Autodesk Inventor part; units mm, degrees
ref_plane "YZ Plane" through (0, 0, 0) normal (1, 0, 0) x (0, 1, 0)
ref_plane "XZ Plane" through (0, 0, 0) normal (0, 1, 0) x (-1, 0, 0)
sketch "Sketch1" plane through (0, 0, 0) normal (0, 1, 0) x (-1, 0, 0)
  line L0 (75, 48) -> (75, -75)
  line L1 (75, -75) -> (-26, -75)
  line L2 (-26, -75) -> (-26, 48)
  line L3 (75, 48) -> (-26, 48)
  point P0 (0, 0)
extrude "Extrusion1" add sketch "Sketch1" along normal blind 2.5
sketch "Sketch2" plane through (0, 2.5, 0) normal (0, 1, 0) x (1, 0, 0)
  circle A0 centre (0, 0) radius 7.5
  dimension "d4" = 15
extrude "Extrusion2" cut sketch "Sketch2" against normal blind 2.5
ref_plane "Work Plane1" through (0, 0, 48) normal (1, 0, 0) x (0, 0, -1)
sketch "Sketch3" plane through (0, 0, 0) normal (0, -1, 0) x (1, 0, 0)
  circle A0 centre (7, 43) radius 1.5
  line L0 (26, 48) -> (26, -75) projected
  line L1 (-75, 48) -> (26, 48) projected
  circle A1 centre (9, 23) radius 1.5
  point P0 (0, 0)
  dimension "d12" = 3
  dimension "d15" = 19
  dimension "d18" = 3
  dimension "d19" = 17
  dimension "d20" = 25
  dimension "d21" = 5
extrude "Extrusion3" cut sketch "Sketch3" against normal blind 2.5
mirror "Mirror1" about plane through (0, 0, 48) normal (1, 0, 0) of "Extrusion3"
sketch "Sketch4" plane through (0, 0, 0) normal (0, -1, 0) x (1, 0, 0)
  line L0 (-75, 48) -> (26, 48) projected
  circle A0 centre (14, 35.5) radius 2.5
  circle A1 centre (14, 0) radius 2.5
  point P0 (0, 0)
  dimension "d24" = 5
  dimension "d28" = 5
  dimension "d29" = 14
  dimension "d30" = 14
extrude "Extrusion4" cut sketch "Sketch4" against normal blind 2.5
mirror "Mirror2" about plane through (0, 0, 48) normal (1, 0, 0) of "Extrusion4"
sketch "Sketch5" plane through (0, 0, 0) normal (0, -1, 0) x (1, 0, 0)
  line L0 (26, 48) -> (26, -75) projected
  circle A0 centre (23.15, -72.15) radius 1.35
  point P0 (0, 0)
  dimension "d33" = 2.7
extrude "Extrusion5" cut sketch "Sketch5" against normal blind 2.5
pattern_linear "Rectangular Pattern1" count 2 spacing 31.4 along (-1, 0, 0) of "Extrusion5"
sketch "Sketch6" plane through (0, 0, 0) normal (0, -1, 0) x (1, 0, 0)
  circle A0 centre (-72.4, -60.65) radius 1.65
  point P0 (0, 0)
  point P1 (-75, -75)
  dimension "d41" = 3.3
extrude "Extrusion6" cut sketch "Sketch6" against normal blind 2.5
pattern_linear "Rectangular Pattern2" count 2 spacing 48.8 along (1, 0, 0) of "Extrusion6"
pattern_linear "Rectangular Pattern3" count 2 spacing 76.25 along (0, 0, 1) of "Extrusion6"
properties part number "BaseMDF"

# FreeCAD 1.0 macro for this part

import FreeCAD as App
import Part
import Sketcher

V = App.Vector
Q = App.Units.Quantity

doc = App.newDocument("Part")
body = doc.addObject("PartDesign::Body", "Body")

sketch1 = body.newObject("Sketcher::SketchObject", "Sketch")
sketch1.AttachmentSupport = (doc.getObject("XZ_Plane"), [""])
sketch1.MapMode = "FlatFace"
sketch1.addGeometry(Part.LineSegment(V(-75, -75, 0), V(-75, 48, 0)), False)
sketch1.addGeometry(Part.LineSegment(V(-75, 48, 0), V(26, 48, 0)), False)
sketch1.addGeometry(Part.LineSegment(V(26, 48, 0), V(26, -75, 0)), False)
sketch1.addGeometry(Part.LineSegment(V(26, -75, 0), V(-75, -75, 0)), False)
sketch1.addConstraint(Sketcher.Constraint("Coincident", 0, 2, 1, 1))
sketch1.addConstraint(Sketcher.Constraint("Coincident", 1, 2, 2, 1))
sketch1.addConstraint(Sketcher.Constraint("Coincident", 2, 2, 3, 1))
sketch1.addConstraint(Sketcher.Constraint("Coincident", 3, 2, 0, 1))
sketch1.addConstraint(Sketcher.Constraint("Vertical", 0))
sketch1.addConstraint(Sketcher.Constraint("Horizontal", 1))
sketch1.addConstraint(Sketcher.Constraint("Vertical", 2))
sketch1.addConstraint(Sketcher.Constraint("Horizontal", 3))
sketch1.addConstraint(Sketcher.Constraint("DistanceX", 1, 1, 1, 2, Q("101 mm")))
sketch1.addConstraint(Sketcher.Constraint("DistanceY", 0, 1, 0, 2, Q("123 mm")))
sketch1.addConstraint(Sketcher.Constraint("DistanceX", 0, 2, -1, 1, Q("75 mm")))
sketch1.addConstraint(Sketcher.Constraint("DistanceY", -1, 1, 0, 2, Q("48 mm")))
pad1 = body.newObject("PartDesign::Pad", "Pad")
pad1.Profile = sketch1
pad1.Length = 2.5
pad1.Reversed = True

sketch2 = body.newObject("Sketcher::SketchObject", "Sketch001")
sketch2.AttachmentSupport = (doc.getObject("XZ_Plane"), [""])
sketch2.MapMode = "FlatFace"
sketch2.AttachmentOffset = App.Placement(V(0, 0, -2.5), App.Rotation())
sketch2.addGeometry(Part.Circle(V(0, 0, 0), V(0, 0, 1), 7.5), False)
sketch2.addConstraint(Sketcher.Constraint("Coincident", 0, 3, -1, 1))
sketch2.addConstraint(Sketcher.Constraint("Diameter", 0, Q("15 mm")))
pocket1 = body.newObject("PartDesign::Pocket", "Pocket")
pocket1.Profile = sketch2
pocket1.Length = 2.5
pocket1.Reversed = True

sketch3 = body.newObject("Sketcher::SketchObject", "Sketch002")
sketch3.AttachmentSupport = (doc.getObject("XZ_Plane"), [""])
sketch3.MapMode = "FlatFace"
sketch3.addGeometry(Part.Circle(V(7, 43, 0), V(0, 0, 1), 1.5), False)
sketch3.addGeometry(Part.Circle(V(9, 23, 0), V(0, 0, 1), 1.5), False)
sketch3.addConstraint(Sketcher.Constraint("Equal", 0, 1))
sketch3.addConstraint(Sketcher.Constraint("Diameter", 0, Q("3 mm")))
sketch3.addConstraint(Sketcher.Constraint("DistanceX", -1, 1, 0, 3, Q("7 mm")))
sketch3.addConstraint(Sketcher.Constraint("DistanceY", -1, 1, 0, 3, Q("43 mm")))
sketch3.addConstraint(Sketcher.Constraint("DistanceX", -1, 1, 1, 3, Q("9 mm")))
sketch3.addConstraint(Sketcher.Constraint("DistanceY", -1, 1, 1, 3, Q("23 mm")))
pocket2 = body.newObject("PartDesign::Pocket", "Pocket001")
pocket2.Profile = sketch3
pocket2.Length = 2.5
doc.recompute()

mirrored = body.newObject("PartDesign::Mirrored", "Mirrored")
mirrored.Originals = [pocket2]
mirrored.MirrorPlane = (doc.getObject("YZ_Plane"), [""])
body.Tip = mirrored

sketch4 = body.newObject("Sketcher::SketchObject", "Sketch003")
sketch4.AttachmentSupport = (doc.getObject("XZ_Plane"), [""])
sketch4.MapMode = "FlatFace"
sketch4.addGeometry(Part.Circle(V(14, 35.5, 0), V(0, 0, 1), 2.5), False)
sketch4.addGeometry(Part.Circle(V(14, 0, 0), V(0, 0, 1), 2.5), False)
sketch4.addConstraint(Sketcher.Constraint("Equal", 0, 1))
sketch4.addConstraint(Sketcher.Constraint("PointOnObject", 1, 3, -1))
sketch4.addConstraint(Sketcher.Constraint("Vertical", 0, 3, 1, 3))
sketch4.addConstraint(Sketcher.Constraint("Diameter", 0, Q("5 mm")))
sketch4.addConstraint(Sketcher.Constraint("DistanceX", -1, 1, 0, 3, Q("14 mm")))
sketch4.addConstraint(Sketcher.Constraint("DistanceY", -1, 1, 0, 3, Q("35.5 mm")))
pocket3 = body.newObject("PartDesign::Pocket", "Pocket002")
pocket3.Profile = sketch4
pocket3.Length = 2.5
doc.recompute()

mirrored2 = body.newObject("PartDesign::Mirrored", "Mirrored001")
mirrored2.Originals = [pocket3]
mirrored2.MirrorPlane = (doc.getObject("YZ_Plane"), [""])
body.Tip = mirrored2

sketch5 = body.newObject("Sketcher::SketchObject", "Sketch004")
sketch5.AttachmentSupport = (doc.getObject("XZ_Plane"), [""])
sketch5.MapMode = "FlatFace"
sketch5.addGeometry(Part.Circle(V(23.15, -72.15, 0), V(0, 0, 1), 1.35), False)
sketch5.addConstraint(Sketcher.Constraint("Diameter", 0, Q("2.7 mm")))
sketch5.addConstraint(Sketcher.Constraint("DistanceX", -1, 1, 0, 3, Q("23.15 mm")))
sketch5.addConstraint(Sketcher.Constraint("DistanceY", 0, 3, -1, 1, Q("72.15 mm")))
pocket4 = body.newObject("PartDesign::Pocket", "Pocket003")
pocket4.Profile = sketch5
pocket4.Length = 2.5
doc.recompute()

linearpattern = body.newObject("PartDesign::LinearPattern", "LinearPattern")
linearpattern.Originals = [pocket4]
linearpattern.Direction = (doc.getObject("X_Axis"), [""])
linearpattern.Mode = "offset"
linearpattern.Offset = 31.4
linearpattern.Occurrences = 2
linearpattern.Reversed = True
body.Tip = linearpattern

sketch6 = body.newObject("Sketcher::SketchObject", "Sketch005")
sketch6.AttachmentSupport = (doc.getObject("XZ_Plane"), [""])
sketch6.MapMode = "FlatFace"
sketch6.addGeometry(Part.Circle(V(-72.4, -60.65, 0), V(0, 0, 1), 1.65), False)
sketch6.addConstraint(Sketcher.Constraint("Diameter", 0, Q("3.3 mm")))
sketch6.addConstraint(Sketcher.Constraint("DistanceX", 0, 3, -1, 1, Q("72.4 mm")))
sketch6.addConstraint(Sketcher.Constraint("DistanceY", 0, 3, -1, 1, Q("60.65 mm")))
pocket5 = body.newObject("PartDesign::Pocket", "Pocket004")
pocket5.Profile = sketch6
pocket5.Length = 2.5
doc.recompute()

linearpattern2 = body.newObject("PartDesign::LinearPattern", "LinearPattern001")
linearpattern2.Originals = [pocket5]
linearpattern2.Direction = (doc.getObject("X_Axis"), [""])
linearpattern2.Mode = "offset"
linearpattern2.Offset = 48.8
linearpattern2.Occurrences = 2
body.Tip = linearpattern2
doc.recompute()

linearpattern3 = body.newObject("PartDesign::LinearPattern", "LinearPattern002")
linearpattern3.Originals = [pocket5]
linearpattern3.Direction = (doc.getObject("Z_Axis"), [""])
linearpattern3.Mode = "offset"
linearpattern3.Offset = 76.25
linearpattern3.Occurrences = 2
body.Tip = linearpattern3

doc.recompute()
